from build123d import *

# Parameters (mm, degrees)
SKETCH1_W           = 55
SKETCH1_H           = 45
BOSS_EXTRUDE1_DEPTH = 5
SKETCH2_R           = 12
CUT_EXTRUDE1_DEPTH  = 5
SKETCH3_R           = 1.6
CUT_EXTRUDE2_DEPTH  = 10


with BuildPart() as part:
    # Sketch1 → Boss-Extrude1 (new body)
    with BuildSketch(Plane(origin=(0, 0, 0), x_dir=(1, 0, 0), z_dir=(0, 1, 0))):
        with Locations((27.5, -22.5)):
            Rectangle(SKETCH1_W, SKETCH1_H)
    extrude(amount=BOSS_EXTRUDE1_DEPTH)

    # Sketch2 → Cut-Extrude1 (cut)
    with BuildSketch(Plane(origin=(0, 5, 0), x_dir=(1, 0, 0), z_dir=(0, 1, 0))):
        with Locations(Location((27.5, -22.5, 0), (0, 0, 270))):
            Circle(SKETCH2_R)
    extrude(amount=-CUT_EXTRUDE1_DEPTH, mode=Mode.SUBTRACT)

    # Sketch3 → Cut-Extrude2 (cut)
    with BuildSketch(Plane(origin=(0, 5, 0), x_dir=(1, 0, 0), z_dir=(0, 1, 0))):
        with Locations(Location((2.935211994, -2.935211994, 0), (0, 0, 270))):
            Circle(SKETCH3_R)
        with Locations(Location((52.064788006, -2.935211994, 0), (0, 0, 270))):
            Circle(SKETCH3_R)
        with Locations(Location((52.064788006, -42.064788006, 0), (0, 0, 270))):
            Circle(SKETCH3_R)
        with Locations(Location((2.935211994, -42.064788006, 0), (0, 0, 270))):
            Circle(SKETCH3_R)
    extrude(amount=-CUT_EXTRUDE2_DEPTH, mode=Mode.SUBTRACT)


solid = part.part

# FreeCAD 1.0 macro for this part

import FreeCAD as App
import Part
import Sketcher

V = App.Vector

doc = App.newDocument("Part")
body = doc.addObject("PartDesign::Body", "Body")

# Sketch on XZ plane
sketch1 = doc.addObject("Sketcher::SketchObject", "Sketch")
body.addObject(sketch1)
sketch1.AttachmentSupport = (doc.XZ_Plane, [""])
sketch1.MapMode = "FlatFace"
sketch1.addGeometry([
    Part.LineSegment(V(0, 0, 0), V(0, 45, 0)),
    Part.LineSegment(V(0, 45, 0), V(55, 45, 0)),
    Part.LineSegment(V(55, 45, 0), V(55, 0, 0)),
    Part.LineSegment(V(55, 0, 0), V(0, 0, 0)),
], False)
sketch1.addConstraint([
    Sketcher.Constraint("Coincident", 0, 2, 1, 1),
    Sketcher.Constraint("Coincident", 1, 2, 2, 1),
    Sketcher.Constraint("Coincident", 2, 2, 3, 1),
    Sketcher.Constraint("Coincident", 3, 2, 0, 1),
    Sketcher.Constraint("Vertical", 0),
    Sketcher.Constraint("Horizontal", 1),
    Sketcher.Constraint("Vertical", 2),
    Sketcher.Constraint("Horizontal", 3),
    Sketcher.Constraint("Coincident", 3, 2, -1, 1),
    Sketcher.Constraint("DistanceX", 1, 1, 1, 2, 55.0),
    Sketcher.Constraint("DistanceY", 0, 1, 0, 2, 45.0),
])
pad1 = doc.addObject("PartDesign::Pad", "Pad")
body.addObject(pad1)
pad1.Profile = sketch1
pad1.Length = 5
pad1.Reversed = True

# Sketch on XZ plane
sketch2 = doc.addObject("Sketcher::SketchObject", "Sketch001")
body.addObject(sketch2)
sketch2.AttachmentSupport = (doc.XZ_Plane, [""])
sketch2.MapMode = "FlatFace"
sketch2.AttachmentOffset = App.Placement(V(0, 0, -5), App.Rotation())
sketch2.addGeometry(Part.Circle(V(27.5, 22.5, 0), V(0, 0, 1), 12), False)
sketch2.addConstraint([
    Sketcher.Constraint("Diameter", 0, 24.0),
    Sketcher.Constraint("DistanceX", -1, 1, 0, 3, 27.5),
    Sketcher.Constraint("DistanceY", -1, 1, 0, 3, 22.5),
])
pocket1 = doc.addObject("PartDesign::Pocket", "Pocket")
body.addObject(pocket1)
pocket1.Profile = sketch2
pocket1.Length = 5
pocket1.Reversed = True

# Sketch on XZ plane
sketch3 = doc.addObject("Sketcher::SketchObject", "Sketch002")
body.addObject(sketch3)
sketch3.AttachmentSupport = (doc.XZ_Plane, [""])
sketch3.MapMode = "FlatFace"
sketch3.AttachmentOffset = App.Placement(V(0, 0, -5), App.Rotation())
sketch3.addGeometry([
    Part.Circle(V(2.935212, 2.935212, 0), V(0, 0, 1), 1.6),
    Part.Circle(V(52.064788, 2.935212, 0), V(0, 0, 1), 1.6),
    Part.Circle(V(52.064788, 42.064788, 0), V(0, 0, 1), 1.6),
    Part.Circle(V(2.935212, 42.064788, 0), V(0, 0, 1), 1.6),
], False)
sketch3.addConstraint([
    Sketcher.Constraint("Equal", 0, 1),
    Sketcher.Constraint("Equal", 1, 2),
    Sketcher.Constraint("Equal", 2, 3),
    Sketcher.Constraint("Horizontal", 0, 3, 1, 3),
    Sketcher.Constraint("Horizontal", 2, 3, 3, 3),
    Sketcher.Constraint("Vertical", 1, 3, 2, 3),
    Sketcher.Constraint("Vertical", 0, 3, 3, 3),
    Sketcher.Constraint("Diameter", 0, 3.2),
    Sketcher.Constraint("DistanceX", -1, 1, 0, 3, 2.935212),
    Sketcher.Constraint("DistanceY", -1, 1, 0, 3, 2.935212),
    Sketcher.Constraint("DistanceX", -1, 1, 1, 3, 52.064788),
    Sketcher.Constraint("DistanceY", -1, 1, 2, 3, 42.064788),
])
pocket2 = doc.addObject("PartDesign::Pocket", "Pocket001")
body.addObject(pocket2)
pocket2.Profile = sketch3
pocket2.Length = 10
pocket2.Reversed = True

doc.recompute()
